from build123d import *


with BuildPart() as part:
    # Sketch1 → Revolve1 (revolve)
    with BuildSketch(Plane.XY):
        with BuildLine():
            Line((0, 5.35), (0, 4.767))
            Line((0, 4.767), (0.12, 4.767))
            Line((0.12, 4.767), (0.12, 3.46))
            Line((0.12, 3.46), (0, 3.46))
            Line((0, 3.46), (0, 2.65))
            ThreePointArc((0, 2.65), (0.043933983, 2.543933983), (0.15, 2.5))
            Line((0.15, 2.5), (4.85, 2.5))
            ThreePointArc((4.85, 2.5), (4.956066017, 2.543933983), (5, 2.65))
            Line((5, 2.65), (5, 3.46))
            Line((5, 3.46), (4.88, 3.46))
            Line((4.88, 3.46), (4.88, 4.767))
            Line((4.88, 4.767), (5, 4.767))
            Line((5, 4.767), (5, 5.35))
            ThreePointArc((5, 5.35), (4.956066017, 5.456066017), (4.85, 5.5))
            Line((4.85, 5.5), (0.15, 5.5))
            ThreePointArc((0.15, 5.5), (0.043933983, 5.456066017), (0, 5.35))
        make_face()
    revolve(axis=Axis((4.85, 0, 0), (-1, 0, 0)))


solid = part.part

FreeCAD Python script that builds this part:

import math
import FreeCAD as App
import Part
import Sketcher

doc = App.newDocument("Part")
body = doc.addObject("PartDesign::Body", "Body")

# Sketch on XY plane
sketch1 = body.newObject("Sketcher::SketchObject", "Sketch")
sketch1.AttachmentSupport = (doc.getObject("XY_Plane"), [""])
sketch1.MapMode = "FlatFace"
sketch1.addGeometry([
    Part.LineSegment(App.Vector(0, 5.35, 0), App.Vector(0, 4.77, 0)),  # 0
    Part.LineSegment(App.Vector(0, 4.77, 0), App.Vector(0.12, 4.77, 0)),  # 1
    Part.LineSegment(App.Vector(0.12, 4.77, 0), App.Vector(0.12, 3.46, 0)),  # 2
    Part.LineSegment(App.Vector(0.12, 3.46, 0), App.Vector(0, 3.46, 0)),  # 3
    Part.LineSegment(App.Vector(0, 3.46, 0), App.Vector(0, 2.65, 0)),  # 4
    Part.ArcOfCircle(Part.Circle(App.Vector(0.15, 2.65, 0), App.Vector(0, 0, 1), 0.15), math.radians(-180), math.radians(-90)),  # 5
    Part.LineSegment(App.Vector(0.15, 2.5, 0), App.Vector(4.85, 2.5, 0)),  # 6
    Part.ArcOfCircle(Part.Circle(App.Vector(4.85, 2.65, 0), App.Vector(0, 0, 1), 0.15), math.radians(-90), math.radians(0)),  # 7
    Part.LineSegment(App.Vector(5, 2.65, 0), App.Vector(5, 3.46, 0)),  # 8
    Part.LineSegment(App.Vector(5, 3.46, 0), App.Vector(4.88, 3.46, 0)),  # 9
    Part.LineSegment(App.Vector(4.88, 3.46, 0), App.Vector(4.88, 4.77, 0)),  # 10
    Part.LineSegment(App.Vector(4.88, 4.77, 0), App.Vector(5, 4.77, 0)),  # 11
    Part.LineSegment(App.Vector(5, 4.77, 0), App.Vector(5, 5.35, 0)),  # 12
    Part.ArcOfCircle(Part.Circle(App.Vector(4.85, 5.35, 0), App.Vector(0, 0, 1), 0.15), math.radians(0), math.radians(90)),  # 13
    Part.LineSegment(App.Vector(4.85, 5.5, 0), App.Vector(0.15, 5.5, 0)),  # 14
    Part.ArcOfCircle(Part.Circle(App.Vector(0.15, 5.35, 0), App.Vector(0, 0, 1), 0.15), math.radians(90), math.radians(180)),  # 15
], False)
sketch1.addConstraint([
    Sketcher.Constraint("Coincident", 0, 2, 1, 1),
    Sketcher.Constraint("Coincident", 1, 2, 2, 1),
    Sketcher.Constraint("Coincident", 2, 2, 3, 1),
    Sketcher.Constraint("Coincident", 3, 2, 4, 1),
    Sketcher.Constraint("Tangent", 4, 2, 5, 1),
    Sketcher.Constraint("Tangent", 5, 2, 6, 1),
    Sketcher.Constraint("Tangent", 6, 2, 7, 1),
    Sketcher.Constraint("Tangent", 7, 2, 8, 1),
    Sketcher.Constraint("Coincident", 8, 2, 9, 1),
    Sketcher.Constraint("Coincident", 9, 2, 10, 1),
    Sketcher.Constraint("Coincident", 10, 2, 11, 1),
    Sketcher.Constraint("Coincident", 11, 2, 12, 1),
    Sketcher.Constraint("Tangent", 12, 2, 13, 1),
    Sketcher.Constraint("Tangent", 13, 2, 14, 1),
    Sketcher.Constraint("Tangent", 14, 2, 15, 1),
    Sketcher.Constraint("Tangent", 15, 2, 0, 1),
    Sketcher.Constraint("Vertical", 0),
    Sketcher.Constraint("Horizontal", 1),
    Sketcher.Constraint("Vertical", 2),
    Sketcher.Constraint("Horizontal", 3),
    Sketcher.Constraint("Vertical", 4),
    Sketcher.Constraint("Horizontal", 6),
    Sketcher.Constraint("Vertical", 8),
    Sketcher.Constraint("Horizontal", 9),
    Sketcher.Constraint("Vertical", 10),
    Sketcher.Constraint("Horizontal", 11),
    Sketcher.Constraint("Vertical", 12),
    Sketcher.Constraint("Horizontal", 14),
    Sketcher.Constraint("Equal", 5, 7),
    Sketcher.Constraint("Equal", 7, 13),
    Sketcher.Constraint("Equal", 13, 15),
    Sketcher.Constraint("PointOnObject", 0, 2, -2),
    Sketcher.Constraint("PointOnObject", 3, 2, -2),
    Sketcher.Constraint("Horizontal", 3, 2, 8, 2),
    Sketcher.Constraint("Horizontal", 1, 2, 10, 2),
    Sketcher.Constraint("Vertical", 7, 3, 13, 3),
    Sketcher.Constraint("Equal", 3, 9),
    Sketcher.Constraint("Radius", 5, 0.15),
    Sketcher.Constraint("DistanceX", 6, 1, 6, 2, 4.7),
    Sketcher.Constraint("DistanceX", 1, 1, 1, 2, 0.12),
    Sketcher.Constraint("DistanceY", 4, 2, 4, 1, 0.81),
    Sketcher.Constraint("DistanceY", -1, 1, 5, 2, 2.5),
    Sketcher.Constraint("DistanceY", -1, 1, 13, 2, 5.5),
    Sketcher.Constraint("DistanceY", 0, 2, 0, 1, 0.583),
])
revolution = body.newObject("PartDesign::Revolution", "Revolution")
revolution.Profile = sketch1
revolution.ReferenceAxis = (sketch1, ["H_Axis"])
revolution.Angle = 360

doc.recompute()
